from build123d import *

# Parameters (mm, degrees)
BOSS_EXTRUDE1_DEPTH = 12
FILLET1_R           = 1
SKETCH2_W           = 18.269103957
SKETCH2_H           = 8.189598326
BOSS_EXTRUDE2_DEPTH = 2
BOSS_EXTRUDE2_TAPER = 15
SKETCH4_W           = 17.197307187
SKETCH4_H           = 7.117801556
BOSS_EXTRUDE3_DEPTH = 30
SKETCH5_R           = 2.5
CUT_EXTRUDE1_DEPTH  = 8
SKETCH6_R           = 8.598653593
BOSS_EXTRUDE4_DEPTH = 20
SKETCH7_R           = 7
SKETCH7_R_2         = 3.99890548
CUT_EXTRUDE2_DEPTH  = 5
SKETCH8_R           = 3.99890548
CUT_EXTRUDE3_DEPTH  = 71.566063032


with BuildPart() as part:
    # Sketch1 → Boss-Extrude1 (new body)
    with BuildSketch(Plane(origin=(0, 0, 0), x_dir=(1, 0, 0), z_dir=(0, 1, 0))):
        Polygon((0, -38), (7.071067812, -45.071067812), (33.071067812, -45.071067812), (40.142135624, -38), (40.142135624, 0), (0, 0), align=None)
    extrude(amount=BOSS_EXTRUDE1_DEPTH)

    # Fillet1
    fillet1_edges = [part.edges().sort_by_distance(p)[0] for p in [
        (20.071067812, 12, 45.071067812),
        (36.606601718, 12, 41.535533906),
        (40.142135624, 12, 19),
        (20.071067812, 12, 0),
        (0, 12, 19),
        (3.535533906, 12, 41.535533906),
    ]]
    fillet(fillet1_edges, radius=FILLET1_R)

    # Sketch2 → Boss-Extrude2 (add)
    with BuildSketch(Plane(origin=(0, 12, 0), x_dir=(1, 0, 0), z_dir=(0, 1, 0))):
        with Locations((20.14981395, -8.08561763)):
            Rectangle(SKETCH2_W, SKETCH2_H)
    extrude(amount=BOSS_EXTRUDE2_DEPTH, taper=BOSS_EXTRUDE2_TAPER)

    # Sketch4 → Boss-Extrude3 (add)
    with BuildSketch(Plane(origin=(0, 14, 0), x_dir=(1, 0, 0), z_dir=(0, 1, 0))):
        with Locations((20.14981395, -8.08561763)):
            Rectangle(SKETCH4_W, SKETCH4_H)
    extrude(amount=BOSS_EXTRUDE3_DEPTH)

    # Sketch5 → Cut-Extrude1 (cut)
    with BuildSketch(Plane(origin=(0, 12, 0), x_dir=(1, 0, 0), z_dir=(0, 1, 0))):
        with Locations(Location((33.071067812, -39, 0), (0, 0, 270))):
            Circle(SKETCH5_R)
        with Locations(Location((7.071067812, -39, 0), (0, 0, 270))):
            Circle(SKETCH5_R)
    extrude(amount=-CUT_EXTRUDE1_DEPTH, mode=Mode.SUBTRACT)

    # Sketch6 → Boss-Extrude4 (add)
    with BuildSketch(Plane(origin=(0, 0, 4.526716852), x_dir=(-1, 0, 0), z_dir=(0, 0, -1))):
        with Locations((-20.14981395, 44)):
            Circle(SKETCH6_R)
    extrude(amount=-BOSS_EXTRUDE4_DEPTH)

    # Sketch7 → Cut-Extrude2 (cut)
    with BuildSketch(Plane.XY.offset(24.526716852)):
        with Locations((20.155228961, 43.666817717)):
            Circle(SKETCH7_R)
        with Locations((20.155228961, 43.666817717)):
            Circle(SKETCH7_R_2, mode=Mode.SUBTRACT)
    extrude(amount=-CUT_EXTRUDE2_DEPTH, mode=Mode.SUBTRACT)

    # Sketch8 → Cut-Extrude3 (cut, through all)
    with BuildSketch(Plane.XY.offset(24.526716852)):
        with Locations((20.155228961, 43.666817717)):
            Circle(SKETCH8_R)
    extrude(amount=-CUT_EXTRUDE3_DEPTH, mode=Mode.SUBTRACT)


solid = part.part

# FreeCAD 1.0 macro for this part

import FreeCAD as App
import Part
import Sketcher
Q = App.Units.Quantity


def edges_at(feature, points):
    """Names of the edges that pass closest to the given points."""
    edges = feature.Shape.Edges
    near = lambda p: min(range(len(edges)), key=lambda i: edges[i].distToShape(Part.Vertex(*p))[0])
    return sorted({f"Edge{near(p) + 1}" for p in points})


def add_polygon(sketch, points):
    """Adds a closed chain of lines whose ends are joined by coincident constraints."""
    first, n = sketch.GeometryCount, len(points)
    for a, b in zip(points, points[1:] + points[:1]):
        sketch.addGeometry(Part.LineSegment(App.Vector(*a, 0), App.Vector(*b, 0)), False)
    for i in range(n):
        sketch.addConstraint(Sketcher.Constraint("Coincident", first + i, 2, first + (i + 1) % n, 1))

doc = App.newDocument("Part")
body = doc.addObject("PartDesign::Body", "Body")

sketch1 = doc.addObject("Sketcher::SketchObject", "Sketch")
body.addObject(sketch1)
sketch1.AttachmentSupport = (doc.XZ_Plane, [""])
sketch1.MapMode = "FlatFace"
add_polygon(sketch1, [(0, 38), (7, 45), (33, 45), (40, 38), (40, 0), (0, 0)])
sketch1.addConstraint([
    Sketcher.Constraint("Horizontal", 1),
    Sketcher.Constraint("Vertical", 3),
    Sketcher.Constraint("Horizontal", 4),
    Sketcher.Constraint("Vertical", 5),
    Sketcher.Constraint("Coincident", 4, 2, -1, 1),
    Sketcher.Constraint("Perpendicular", 0, 2),
    Sketcher.Constraint("Horizontal", 2, 2, 5, 2),
    Sketcher.Constraint("Equal", 0, 2),
    Sketcher.Constraint("DistanceX", 1, 1, 1, 2, Q("26 mm")),
    Sketcher.Constraint("DistanceY", 3, 2, 3, 1, Q("38 mm")),
    Sketcher.Constraint("Distance", 0, Q("10 mm")),
])
pad1 = doc.addObject("PartDesign::Pad", "Pad")
body.addObject(pad1)
pad1.Profile = sketch1
pad1.Length = 12
pad1.Reversed = True
doc.recompute()

fillet = doc.addObject("PartDesign::Fillet", "Fillet")
body.addObject(fillet)
fillet.Base = (pad1, edges_at(pad1, [
    (20.071, 12, 45.071),
    (36.607, 12, 41.536),
    (40.142, 12, 19),
    (20.071, 12, 0),
    (0, 12, 19),
    (3.536, 12, 41.536),
]))
fillet.Radius = 1

sketch2 = doc.addObject("Sketcher::SketchObject", "Sketch001")
body.addObject(sketch2)
sketch2.AttachmentSupport = (doc.XZ_Plane, [""])
sketch2.MapMode = "FlatFace"
sketch2.AttachmentOffset = App.Placement(App.Vector(0, 0, -12), App.Rotation())
add_polygon(sketch2, [(11, 4), (11, 12), (29, 12), (29, 4)])
sketch2.addConstraint([
    Sketcher.Constraint("Vertical", 0),
    Sketcher.Constraint("Horizontal", 1),
    Sketcher.Constraint("Vertical", 2),
    Sketcher.Constraint("Horizontal", 3),
    Sketcher.Constraint("DistanceY", 0, 1, 0, 2, Q("8.189598 mm")),
    Sketcher.Constraint("DistanceX", 1, 1, 1, 2, Q("18.269104 mm")),
    Sketcher.Constraint("DistanceX", -1, 1, 0, 2, Q("11.015262 mm")),
    Sketcher.Constraint("DistanceY", -1, 1, 2, 2, Q("3.990818 mm")),
])
pad2 = doc.addObject("PartDesign::Pad", "Pad001")
body.addObject(pad2)
pad2.Profile = sketch2
pad2.Length = 2
pad2.Reversed = True
pad2.TaperAngle = -15

sketch3 = doc.addObject("Sketcher::SketchObject", "Sketch002")
body.addObject(sketch3)
sketch3.AttachmentSupport = (doc.XZ_Plane, [""])
sketch3.MapMode = "FlatFace"
sketch3.AttachmentOffset = App.Placement(App.Vector(0, 0, -14), App.Rotation())
add_polygon(sketch3, [(12, 5), (12, 12), (29, 12), (29, 5)])
sketch3.addConstraint([
    Sketcher.Constraint("Vertical", 0),
    Sketcher.Constraint("Horizontal", 1),
    Sketcher.Constraint("Vertical", 2),
    Sketcher.Constraint("Horizontal", 3),
    Sketcher.Constraint("DistanceY", 0, 1, 0, 2, Q("7.117802 mm")),
    Sketcher.Constraint("DistanceX", 1, 1, 1, 2, Q("17.197307 mm")),
    Sketcher.Constraint("DistanceX", -1, 1, 0, 2, Q("11.55116 mm")),
    Sketcher.Constraint("DistanceY", -1, 1, 0, 2, Q("11.644518 mm")),
])
pad3 = doc.addObject("PartDesign::Pad", "Pad002")
body.addObject(pad3)
pad3.Profile = sketch3
pad3.Length = 30
pad3.Reversed = True

sketch4 = doc.addObject("Sketcher::SketchObject", "Sketch003")
body.addObject(sketch4)
sketch4.AttachmentSupport = (doc.XZ_Plane, [""])
sketch4.MapMode = "FlatFace"
sketch4.AttachmentOffset = App.Placement(App.Vector(0, 0, -12), App.Rotation())
sketch4.addGeometry([
    Part.Circle(App.Vector(33.1, 39, 0), App.Vector(0, 0, 1), 2.5),
    Part.Circle(App.Vector(7.1, 39, 0), App.Vector(0, 0, 1), 2.5),
], False)
sketch4.addConstraint([
    Sketcher.Constraint("Equal", 0, 1),
    Sketcher.Constraint("Horizontal", 0, 3, 1, 3),
    Sketcher.Constraint("Diameter", 0, Q("5 mm")),
    Sketcher.Constraint("DistanceY", -1, 1, 0, 3, Q("39 mm")),
    Sketcher.Constraint("DistanceX", 1, 3, 0, 3, Q("26 mm")),
    Sketcher.Constraint("DistanceX", -1, 1, 0, 3, Q("33.071068 mm")),
])
pocket1 = doc.addObject("PartDesign::Pocket", "Pocket")
body.addObject(pocket1)
pocket1.Profile = sketch4
pocket1.Length = 8
pocket1.Reversed = True

sketch5 = doc.addObject("Sketcher::SketchObject", "Sketch004")
body.addObject(sketch5)
sketch5.AttachmentSupport = (doc.XY_Plane, [""])
sketch5.MapMode = "FlatFace"
sketch5.AttachmentOffset = App.Placement(App.Vector(0, 0, 4.526717), App.Rotation())
sketch5.addGeometry(Part.Circle(App.Vector(20, 44, 0), App.Vector(0, 0, 1), 9), False)
sketch5.addConstraint([
    Sketcher.Constraint("DistanceY", -1, 1, 0, 3, Q("44 mm")),
    Sketcher.Constraint("Diameter", 0, Q("17.197307 mm")),
    Sketcher.Constraint("DistanceX", -1, 1, 0, 3, Q("20.149814 mm")),
])
pad4 = doc.addObject("PartDesign::Pad", "Pad003")
body.addObject(pad4)
pad4.Profile = sketch5
pad4.Length = 20

sketch6 = doc.addObject("Sketcher::SketchObject", "Sketch005")
body.addObject(sketch6)
sketch6.AttachmentSupport = (doc.XY_Plane, [""])
sketch6.MapMode = "FlatFace"
sketch6.AttachmentOffset = App.Placement(App.Vector(0, 0, 24.526717), App.Rotation())
sketch6.addGeometry([
    Part.Circle(App.Vector(20.2, 43.7, 0), App.Vector(0, 0, 1), 7),
    Part.Circle(App.Vector(20.2, 43.7, 0), App.Vector(0, 0, 1), 4),
], False)
sketch6.addConstraint([
    Sketcher.Constraint("Coincident", 1, 3, 0, 3),
    Sketcher.Constraint("Diameter", 0, Q("14 mm")),
    Sketcher.Constraint("Diameter", 1, Q("7.997811 mm")),
    Sketcher.Constraint("DistanceX", -1, 1, 0, 3, Q("20.155229 mm")),
    Sketcher.Constraint("DistanceY", -1, 1, 0, 3, Q("43.666818 mm")),
])
pocket2 = doc.addObject("PartDesign::Pocket", "Pocket001")
body.addObject(pocket2)
pocket2.Profile = sketch6
pocket2.Length = 5

sketch7 = doc.addObject("Sketcher::SketchObject", "Sketch006")
body.addObject(sketch7)
sketch7.AttachmentSupport = (doc.XY_Plane, [""])
sketch7.MapMode = "FlatFace"
sketch7.AttachmentOffset = App.Placement(App.Vector(0, 0, 24.526717), App.Rotation())
sketch7.addGeometry(Part.Circle(App.Vector(20.2, 43.7, 0), App.Vector(0, 0, 1), 4), False)
sketch7.addConstraint([
    Sketcher.Constraint("Diameter", 0, Q("7.997811 mm")),
    Sketcher.Constraint("DistanceX", -1, 1, 0, 3, Q("20.155229 mm")),
    Sketcher.Constraint("DistanceY", -1, 1, 0, 3, Q("43.666818 mm")),
])
pocket3 = doc.addObject("PartDesign::Pocket", "Pocket002")
body.addObject(pocket3)
pocket3.Profile = sketch7
pocket3.Type = "ThroughAll"

doc.recompute()
